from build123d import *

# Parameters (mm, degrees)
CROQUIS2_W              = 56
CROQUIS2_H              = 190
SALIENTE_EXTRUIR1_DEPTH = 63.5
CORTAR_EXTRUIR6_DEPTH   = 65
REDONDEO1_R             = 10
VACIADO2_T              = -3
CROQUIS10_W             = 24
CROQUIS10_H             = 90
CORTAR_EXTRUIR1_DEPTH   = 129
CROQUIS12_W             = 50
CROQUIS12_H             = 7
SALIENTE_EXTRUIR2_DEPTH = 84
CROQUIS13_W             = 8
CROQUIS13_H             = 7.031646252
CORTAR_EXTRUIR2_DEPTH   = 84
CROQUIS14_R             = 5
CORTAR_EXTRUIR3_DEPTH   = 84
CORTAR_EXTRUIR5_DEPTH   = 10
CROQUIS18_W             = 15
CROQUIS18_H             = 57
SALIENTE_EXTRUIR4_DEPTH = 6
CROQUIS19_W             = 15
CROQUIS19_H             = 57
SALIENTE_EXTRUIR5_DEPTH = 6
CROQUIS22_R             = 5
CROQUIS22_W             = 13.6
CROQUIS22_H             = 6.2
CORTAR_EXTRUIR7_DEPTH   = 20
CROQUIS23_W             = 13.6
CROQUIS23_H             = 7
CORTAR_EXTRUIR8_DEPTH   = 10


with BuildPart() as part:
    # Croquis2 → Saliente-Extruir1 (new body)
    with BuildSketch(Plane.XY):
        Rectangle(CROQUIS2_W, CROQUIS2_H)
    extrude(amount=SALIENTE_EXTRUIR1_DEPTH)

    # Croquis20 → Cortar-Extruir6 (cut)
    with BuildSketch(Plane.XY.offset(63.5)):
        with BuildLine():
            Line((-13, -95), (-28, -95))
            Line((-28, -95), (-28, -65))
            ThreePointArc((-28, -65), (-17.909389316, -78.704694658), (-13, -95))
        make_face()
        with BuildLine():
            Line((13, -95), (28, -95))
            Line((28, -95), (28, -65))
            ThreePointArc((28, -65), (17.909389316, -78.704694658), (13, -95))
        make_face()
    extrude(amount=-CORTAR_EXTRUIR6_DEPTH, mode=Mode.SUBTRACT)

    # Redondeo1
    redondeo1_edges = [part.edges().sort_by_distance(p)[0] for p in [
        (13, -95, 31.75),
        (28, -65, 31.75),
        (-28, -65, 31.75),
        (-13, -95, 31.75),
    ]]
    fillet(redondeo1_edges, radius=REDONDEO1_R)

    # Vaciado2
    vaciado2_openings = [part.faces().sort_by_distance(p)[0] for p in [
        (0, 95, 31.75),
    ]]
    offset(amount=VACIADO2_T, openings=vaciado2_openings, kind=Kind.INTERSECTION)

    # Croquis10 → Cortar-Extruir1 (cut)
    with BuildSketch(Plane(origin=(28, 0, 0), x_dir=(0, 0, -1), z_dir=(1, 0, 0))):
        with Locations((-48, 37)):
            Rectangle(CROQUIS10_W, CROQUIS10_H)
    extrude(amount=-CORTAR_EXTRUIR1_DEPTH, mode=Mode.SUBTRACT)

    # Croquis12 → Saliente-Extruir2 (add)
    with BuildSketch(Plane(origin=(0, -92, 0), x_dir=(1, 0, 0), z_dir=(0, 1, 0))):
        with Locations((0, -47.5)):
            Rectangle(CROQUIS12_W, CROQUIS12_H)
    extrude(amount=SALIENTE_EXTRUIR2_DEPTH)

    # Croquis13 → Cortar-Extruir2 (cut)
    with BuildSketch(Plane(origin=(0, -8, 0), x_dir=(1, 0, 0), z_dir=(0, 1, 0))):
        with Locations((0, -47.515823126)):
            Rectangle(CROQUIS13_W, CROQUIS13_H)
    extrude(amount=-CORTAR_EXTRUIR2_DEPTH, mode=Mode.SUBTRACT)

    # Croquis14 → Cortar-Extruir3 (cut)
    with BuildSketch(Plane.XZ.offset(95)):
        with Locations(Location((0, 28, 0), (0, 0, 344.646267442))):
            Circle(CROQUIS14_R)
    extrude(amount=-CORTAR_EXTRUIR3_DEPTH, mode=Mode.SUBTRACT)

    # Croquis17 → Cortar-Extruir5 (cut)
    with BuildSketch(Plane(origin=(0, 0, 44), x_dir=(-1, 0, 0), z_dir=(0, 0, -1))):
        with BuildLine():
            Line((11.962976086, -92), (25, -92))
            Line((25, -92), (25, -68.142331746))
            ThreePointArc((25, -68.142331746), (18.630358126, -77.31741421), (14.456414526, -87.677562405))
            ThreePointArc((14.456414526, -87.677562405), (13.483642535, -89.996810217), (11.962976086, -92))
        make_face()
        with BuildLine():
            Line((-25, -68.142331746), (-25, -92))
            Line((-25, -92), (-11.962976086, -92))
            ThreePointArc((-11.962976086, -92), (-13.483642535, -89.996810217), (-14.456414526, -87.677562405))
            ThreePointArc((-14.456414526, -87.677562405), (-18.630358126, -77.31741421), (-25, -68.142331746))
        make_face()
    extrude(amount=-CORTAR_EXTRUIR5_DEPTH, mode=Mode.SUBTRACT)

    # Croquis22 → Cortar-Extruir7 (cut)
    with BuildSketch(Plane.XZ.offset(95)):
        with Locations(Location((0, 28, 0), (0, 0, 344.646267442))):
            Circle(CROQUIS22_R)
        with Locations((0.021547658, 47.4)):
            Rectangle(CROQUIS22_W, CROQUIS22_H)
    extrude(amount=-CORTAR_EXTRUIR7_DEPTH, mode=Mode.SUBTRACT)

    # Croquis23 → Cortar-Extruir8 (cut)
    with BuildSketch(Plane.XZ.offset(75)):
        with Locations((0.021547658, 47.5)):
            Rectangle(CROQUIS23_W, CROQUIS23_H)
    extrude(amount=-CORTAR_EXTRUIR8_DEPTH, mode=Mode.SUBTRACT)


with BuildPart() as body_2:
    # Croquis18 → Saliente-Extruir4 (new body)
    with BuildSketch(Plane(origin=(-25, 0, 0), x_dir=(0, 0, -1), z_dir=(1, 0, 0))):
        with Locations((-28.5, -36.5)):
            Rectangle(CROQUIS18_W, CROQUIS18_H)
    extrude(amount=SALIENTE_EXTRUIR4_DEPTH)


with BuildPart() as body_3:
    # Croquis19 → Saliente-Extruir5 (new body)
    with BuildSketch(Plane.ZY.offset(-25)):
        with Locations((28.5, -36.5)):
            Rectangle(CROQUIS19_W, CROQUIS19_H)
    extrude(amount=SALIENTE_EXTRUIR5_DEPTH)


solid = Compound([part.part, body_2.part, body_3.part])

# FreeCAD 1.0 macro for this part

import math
import FreeCAD as App
import Part
import Sketcher

V = App.Vector


def edges_at(feature, points):
    """Names of the edges that pass closest to the given points."""
    edges = feature.Shape.Edges
    near = lambda p: min(range(len(edges)), key=lambda i: edges[i].distToShape(Part.Vertex(*p))[0])
    return sorted({f"Edge{near(p) + 1}" for p in points})


def faces_at(feature, points):
    """Names of the faces that lie closest to the given points."""
    faces = feature.Shape.Faces
    near = lambda p: min(range(len(faces)), key=lambda i: faces[i].distToShape(Part.Vertex(*p))[0])
    return sorted({f"Face{near(p) + 1}" for p in points})


def add_polygon(sketch, points):
    """Adds a closed chain of lines whose ends are joined by coincident constraints."""
    first, n = sketch.GeometryCount, len(points)
    for a, b in zip(points, points[1:] + points[:1]):
        sketch.addGeometry(Part.LineSegment(App.Vector(*a, 0), App.Vector(*b, 0)), False)
    for i in range(n):
        sketch.addConstraint(Sketcher.Constraint("Coincident", first + i, 2, first + (i + 1) % n, 1))

doc = App.newDocument("Part")
params = doc.addObject("Spreadsheet::Sheet", "Params")
for row, (alias, value) in enumerate([
    ("sketch1_width", "56 mm"),
    ("sketch1_height", "190 mm"),
    ("pad1_length", "63.5 mm"),
    ("sketch2_radius", "50 mm"),
    ("sketch2_width", "15 mm"),
    ("sketch2_height", "30 mm"),
    ("pocket1_length", "65 mm"),
    ("fillet_radius", "10 mm"),
    ("thickness_wall", "3 mm"),
    ("sketch3_width", "90 mm"),
    ("sketch3_height", "24 mm"),
    ("pocket2_length", "129 mm"),
    ("sketch4_width", "50 mm"),
    ("sketch4_height", "7 mm"),
    ("pad2_length", "84 mm"),
    ("sketch5_width", "8 mm"),
    ("pocket3_length", "84 mm"),
    ("sketch6_diameter", "10 mm"),
    ("pocket4_length", "84 mm"),
    ("sketch7_radius", "50 mm"),
    ("sketch7_radius2", "10 mm"),
    ("pocket5_length", "10 mm"),
    ("sketch8_diameter", "10 mm"),
    ("sketch8_width", "13.6 mm"),
    ("sketch8_height", "6.2 mm"),
    ("pocket6_length", "20 mm"),
    ("sketch9_height", "7 mm"),
    ("sketch9_width", "13.6 mm"),
    ("pocket7_length", "10 mm"),
    ("sketch10_width", "57 mm"),
    ("sketch10_height", "15 mm"),
    ("pad3_length", "6 mm"),
    ("sketch11_width", "57 mm"),
    ("sketch11_height", "15 mm"),
    ("pad4_length", "6 mm"),
], start=1):
    params.set(f"A{row}", alias)
    params.set(f"B{row}", "=" + value)
    params.setAlias(f"B{row}", alias)

body = doc.addObject("PartDesign::Body", "Body")

# Sketch on XY plane
sketch1 = body.newObject("Sketcher::SketchObject", "Sketch")
sketch1.AttachmentSupport = (doc.getObject("XY_Plane"), [""])
sketch1.MapMode = "FlatFace"
add_polygon(sketch1, [(-28, 95), (-28, -95), (28, -95), (28, 95)])  # lines 0-3
sketch1.addConstraint([
    Sketcher.Constraint("Vertical", 0),
    Sketcher.Constraint("Horizontal", 1),
    Sketcher.Constraint("Vertical", 2),
    Sketcher.Constraint("Horizontal", 3),
    Sketcher.Constraint("Symmetric", 0, 2, 2, 2, -1, 1),
    Sketcher.Constraint("DistanceX", 1, 1, 1, 2, 56.0),
    Sketcher.Constraint("DistanceY", 0, 2, 0, 1, 190.0),
])
sketch1.setExpression("Constraints[9]", "Params.sketch1_width")
sketch1.setExpression("Constraints[10]", "Params.sketch1_height")
pad1 = body.newObject("PartDesign::Pad", "Pad")
pad1.Profile = sketch1
pad1.setExpression("Length", "Params.pad1_length")

# Sketch on XY plane
sketch2 = body.newObject("Sketcher::SketchObject", "Sketch001")
sketch2.AttachmentSupport = (doc.getObject("XY_Plane"), [""])
sketch2.MapMode = "FlatFace"
sketch2.AttachmentOffset = App.Placement(V(0, 0, 63.5), App.Rotation())
sketch2.addGeometry([
    Part.LineSegment(V(-28, -95, 0), V(-13, -95, 0)),  # 0
    Part.ArcOfCircle(Part.Circle(V(-63, -101, 0), V(0, 0, 1), 50), math.radians(7), math.radians(46)),  # 1
    Part.LineSegment(V(-28, -65, 0), V(-28, -95, 0)),  # 2
    Part.LineSegment(V(13, -95, 0), V(28, -95, 0)),  # 3
    Part.LineSegment(V(28, -95, 0), V(28, -65, 0)),  # 4
    Part.ArcOfCircle(Part.Circle(V(63, -101, 0), V(0, 0, 1), 50), math.radians(134), math.radians(173)),  # 5
], False)
sketch2.addConstraint([
    Sketcher.Constraint("Coincident", 0, 2, 1, 1),
    Sketcher.Constraint("Coincident", 1, 2, 2, 1),
    Sketcher.Constraint("Coincident", 2, 2, 0, 1),
    Sketcher.Constraint("Coincident", 3, 2, 4, 1),
    Sketcher.Constraint("Coincident", 4, 2, 5, 1),
    Sketcher.Constraint("Coincident", 5, 2, 3, 1),
    Sketcher.Constraint("Horizontal", 0),
    Sketcher.Constraint("Vertical", 2),
    Sketcher.Constraint("Horizontal", 3),
    Sketcher.Constraint("Vertical", 4),
    Sketcher.Constraint("Equal", 1, 5),
    Sketcher.Constraint("Symmetric", 1, 3, 5, 3, -2),
    Sketcher.Constraint("Symmetric", 2, 2, 3, 2, -2),
    Sketcher.Constraint("Radius", 1, 50.0),
    Sketcher.Constraint("DistanceX", 0, 1, 0, 2, 15.0),
    Sketcher.Constraint("DistanceY", 2, 2, 2, 1, 30.0),
    Sketcher.Constraint("DistanceX", 0, 2, -1, 1, 13.0),
    Sketcher.Constraint("DistanceY", 0, 2, -1, 1, 95.0),
])
sketch2.setExpression("Constraints[13]", "Params.sketch2_radius")
sketch2.setExpression("Constraints[14]", "Params.sketch2_width")
sketch2.setExpression("Constraints[15]", "Params.sketch2_height")
pocket1 = body.newObject("PartDesign::Pocket", "Pocket")
pocket1.Profile = sketch2
pocket1.setExpression("Length", "Params.pocket1_length")
doc.recompute()

fillet = body.newObject("PartDesign::Fillet", "Fillet")
fillet.Base = (pocket1, edges_at(pocket1, [
    (13, -95, 31.75),
    (28, -65, 31.75),
    (-28, -65, 31.75),
    (-13, -95, 31.75),
]))
fillet.setExpression("Radius", "Params.fillet_radius")
doc.recompute()

thickness = body.newObject("PartDesign::Thickness", "Thickness")
thickness.Base = (fillet, faces_at(fillet, [(0, 95, 31.75)]))
thickness.setExpression("Value", "Params.thickness_wall")
thickness.Reversed = True
thickness.Join = "Intersection"

# Sketch on YZ plane
sketch3 = body.newObject("Sketcher::SketchObject", "Sketch002")
sketch3.AttachmentSupport = (doc.getObject("YZ_Plane"), [""])
sketch3.MapMode = "FlatFace"
sketch3.AttachmentOffset = App.Placement(V(0, 0, 28), App.Rotation())
add_polygon(sketch3, [(82, 60), (-8, 60), (-8, 36), (82, 36)])  # lines 0-3
sketch3.addConstraint([
    Sketcher.Constraint("Horizontal", 0),
    Sketcher.Constraint("Vertical", 1),
    Sketcher.Constraint("Horizontal", 2),
    Sketcher.Constraint("Vertical", 3),
    Sketcher.Constraint("DistanceX", 0, 2, 0, 1, 90.0),
    Sketcher.Constraint("DistanceY", 1, 2, 1, 1, 24.0),
    Sketcher.Constraint("DistanceX", 0, 2, -1, 1, 8.0),
    Sketcher.Constraint("DistanceY", -1, 1, 0, 2, 60.0),
])
sketch3.setExpression("Constraints[8]", "Params.sketch3_width")
sketch3.setExpression("Constraints[9]", "Params.sketch3_height")
pocket2 = body.newObject("PartDesign::Pocket", "Pocket001")
pocket2.Profile = sketch3
pocket2.setExpression("Length", "Params.pocket2_length")

# Sketch on XZ plane
sketch4 = body.newObject("Sketcher::SketchObject", "Sketch003")
sketch4.AttachmentSupport = (doc.getObject("XZ_Plane"), [""])
sketch4.MapMode = "FlatFace"
sketch4.AttachmentOffset = App.Placement(V(0, 0, 92), App.Rotation())
add_polygon(sketch4, [(-25, 44), (-25, 51), (25, 51), (25, 44)])  # lines 0-3
sketch4.addConstraint([
    Sketcher.Constraint("Vertical", 0),
    Sketcher.Constraint("Horizontal", 1),
    Sketcher.Constraint("Vertical", 2),
    Sketcher.Constraint("Horizontal", 3),
    Sketcher.Constraint("DistanceX", 1, 1, 1, 2, 50.0),
    Sketcher.Constraint("DistanceY", 0, 1, 0, 2, 7.0),
    Sketcher.Constraint("DistanceX", 0, 2, -1, 1, 25.0),
    Sketcher.Constraint("DistanceY", -1, 1, 0, 2, 51.0),
])
sketch4.setExpression("Constraints[8]", "Params.sketch4_width")
sketch4.setExpression("Constraints[9]", "Params.sketch4_height")
pad2 = body.newObject("PartDesign::Pad", "Pad001")
pad2.Profile = sketch4
pad2.setExpression("Length", "Params.pad2_length")
pad2.Reversed = True

# Sketch on XZ plane
sketch5 = body.newObject("Sketcher::SketchObject", "Sketch004")
sketch5.AttachmentSupport = (doc.getObject("XZ_Plane"), [""])
sketch5.MapMode = "FlatFace"
sketch5.AttachmentOffset = App.Placement(V(0, 0, 8), App.Rotation())
add_polygon(sketch5, [(-4, 44), (-4, 51), (4, 51), (4, 44)])  # lines 0-3
sketch5.addConstraint([
    Sketcher.Constraint("Vertical", 0),
    Sketcher.Constraint("Horizontal", 1),
    Sketcher.Constraint("Vertical", 2),
    Sketcher.Constraint("Horizontal", 3),
    Sketcher.Constraint("DistanceX", 1, 1, 1, 2, 8.0),
    Sketcher.Constraint("DistanceX", 0, 2, -1, 1, 4.0),
    Sketcher.Constraint("DistanceY", -1, 1, 2, 2, 44.0),
    Sketcher.Constraint("DistanceY", 0, 1, 0, 2, 7.031646),
])
sketch5.setExpression("Constraints[8]", "Params.sketch5_width")
pocket3 = body.newObject("PartDesign::Pocket", "Pocket002")
pocket3.Profile = sketch5
pocket3.setExpression("Length", "Params.pocket3_length")
pocket3.Reversed = True

# Sketch on XZ plane
sketch6 = body.newObject("Sketcher::SketchObject", "Sketch005")
sketch6.AttachmentSupport = (doc.getObject("XZ_Plane"), [""])
sketch6.MapMode = "FlatFace"
sketch6.AttachmentOffset = App.Placement(V(0, 0, 95), App.Rotation())
sketch6.addGeometry(Part.Circle(V(0, 28, 0), V(0, 0, 1), 5), False)
sketch6.addConstraint([
    Sketcher.Constraint("PointOnObject", 0, 3, -2),
    Sketcher.Constraint("Diameter", 0, 10.0),
    Sketcher.Constraint("DistanceY", -1, 1, 0, 3, 28.0),
])
sketch6.setExpression("Constraints[1]", "Params.sketch6_diameter")
pocket4 = body.newObject("PartDesign::Pocket", "Pocket003")
pocket4.Profile = sketch6
pocket4.setExpression("Length", "Params.pocket4_length")

# Sketch on XY plane
sketch7 = body.newObject("Sketcher::SketchObject", "Sketch006")
sketch7.AttachmentSupport = (doc.getObject("XY_Plane"), [""])
sketch7.MapMode = "FlatFace"
sketch7.AttachmentOffset = App.Placement(V(0, 0, 44), App.Rotation())
sketch7.addGeometry([
    Part.LineSegment(V(-12, -92, 0), V(-25, -92, 0)),  # 0
    Part.LineSegment(V(-25, -92, 0), V(-25, -68.1, 0)),  # 1
    Part.ArcOfCircle(Part.Circle(V(-62.6, -101.1, 0), V(0, 0, 1), 50), math.radians(16), math.radians(41)),  # 2
    Part.ArcOfCircle(Part.Circle(V(-4.8, -85, 0), V(0, 0, 1), 10), math.radians(-164), math.radians(-136)),  # 3
    Part.LineSegment(V(25, -68.1, 0), V(25, -92, 0)),  # 4
    Part.LineSegment(V(25, -92, 0), V(12, -92, 0)),  # 5
    Part.ArcOfCircle(Part.Circle(V(4.8, -85, 0), V(0, 0, 1), 10), math.radians(-44), math.radians(-16)),  # 6
    Part.ArcOfCircle(Part.Circle(V(62.6, -101.1, 0), V(0, 0, 1), 50), math.radians(139), math.radians(164)),  # 7
], False)
sketch7.addConstraint([
    Sketcher.Constraint("Coincident", 0, 2, 1, 1),
    Sketcher.Constraint("Coincident", 1, 2, 2, 2),
    Sketcher.Constraint("Tangent", 2, 1, 3, 1),
    Sketcher.Constraint("Coincident", 3, 2, 0, 1),
    Sketcher.Constraint("Coincident", 4, 2, 5, 1),
    Sketcher.Constraint("Coincident", 5, 2, 6, 1),
    Sketcher.Constraint("Tangent", 6, 2, 7, 2),
    Sketcher.Constraint("Coincident", 7, 1, 4, 1),
    Sketcher.Constraint("Horizontal", 0),
    Sketcher.Constraint("Vertical", 1),
    Sketcher.Constraint("Vertical", 4),
    Sketcher.Constraint("Horizontal", 5),
    Sketcher.Constraint("Equal", 3, 6),
    Sketcher.Constraint("Equal", 2, 7),
    Sketcher.Constraint("Symmetric", 3, 3, 6, 3, -2),
    Sketcher.Constraint("Symmetric", 0, 2, 4, 2, -2),
    Sketcher.Constraint("Horizontal", 2, 3, 7, 3),
    Sketcher.Constraint("Radius", 2, 50.0),
    Sketcher.Constraint("Radius", 3, 10.0),
    Sketcher.Constraint("DistanceY", 3, 3, -1, 1, 85.0),
    Sketcher.Constraint("DistanceX", 0, 2, -1, 1, 25.0),
    Sketcher.Constraint("DistanceY", 0, 2, -1, 1, 92.0),
    Sketcher.Constraint("DistanceY", 1, 1, 1, 2, 23.857668),
    Sketcher.Constraint("DistanceX", 2, 3, 3, 3, 57.809201),
])
sketch7.setExpression("Constraints[17]", "Params.sketch7_radius")
sketch7.setExpression("Constraints[18]", "Params.sketch7_radius2")
pocket5 = body.newObject("PartDesign::Pocket", "Pocket004")
pocket5.Profile = sketch7
pocket5.setExpression("Length", "Params.pocket5_length")
pocket5.Reversed = True

# Sketch on XZ plane
sketch8 = body.newObject("Sketcher::SketchObject", "Sketch007")
sketch8.AttachmentSupport = (doc.getObject("XZ_Plane"), [""])
sketch8.MapMode = "FlatFace"
sketch8.AttachmentOffset = App.Placement(V(0, 0, 95), App.Rotation())
sketch8.addGeometry(Part.Circle(V(0, 28, 0), V(0, 0, 1), 5), False)  # 0
add_polygon(sketch8, [(-7, 50), (-7, 44), (7, 44), (7, 50)])  # lines 1-4
sketch8.addConstraint([
    Sketcher.Constraint("Vertical", 1),
    Sketcher.Constraint("Horizontal", 2),
    Sketcher.Constraint("Vertical", 3),
    Sketcher.Constraint("Horizontal", 4),
    Sketcher.Constraint("PointOnObject", 0, 3, -2),
    Sketcher.Constraint("Diameter", 0, 10.0),
    Sketcher.Constraint("DistanceX", 2, 1, 2, 2, 13.6),
    Sketcher.Constraint("DistanceY", 1, 2, 1, 1, 6.2),
    Sketcher.Constraint("DistanceY", -1, 1, 0, 3, 28.0),
    Sketcher.Constraint("DistanceY", -1, 1, 1, 2, 44.3),
    Sketcher.Constraint("DistanceX", 1, 2, -1, 1, 6.778452),
])
sketch8.setExpression("Constraints[9]", "Params.sketch8_diameter")
sketch8.setExpression("Constraints[10]", "Params.sketch8_width")
sketch8.setExpression("Constraints[11]", "Params.sketch8_height")
pocket6 = body.newObject("PartDesign::Pocket", "Pocket005")
pocket6.Profile = sketch8
pocket6.setExpression("Length", "Params.pocket6_length")

# Sketch on XZ plane
sketch9 = body.newObject("Sketcher::SketchObject", "Sketch008")
sketch9.AttachmentSupport = (doc.getObject("XZ_Plane"), [""])
sketch9.MapMode = "FlatFace"
sketch9.AttachmentOffset = App.Placement(V(0, 0, 75), App.Rotation())
add_polygon(sketch9, [(-7, 51), (-7, 44), (7, 44), (7, 51)])  # lines 0-3
sketch9.addConstraint([
    Sketcher.Constraint("Vertical", 0),
    Sketcher.Constraint("Horizontal", 1),
    Sketcher.Constraint("Vertical", 2),
    Sketcher.Constraint("Horizontal", 3),
    Sketcher.Constraint("DistanceY", 0, 2, 0, 1, 7.0),
    Sketcher.Constraint("DistanceX", 1, 1, 1, 2, 13.6),
    Sketcher.Constraint("DistanceY", -1, 1, 0, 2, 44.0),
    Sketcher.Constraint("DistanceX", 0, 2, -1, 1, 6.778452),
])
sketch9.setExpression("Constraints[8]", "Params.sketch9_height")
sketch9.setExpression("Constraints[9]", "Params.sketch9_width")
pocket7 = body.newObject("PartDesign::Pocket", "Pocket006")
pocket7.Profile = sketch9
pocket7.setExpression("Length", "Params.pocket7_length")
body2 = doc.addObject("PartDesign::Body", "Body001")

# Sketch on YZ plane
sketch10 = body2.newObject("Sketcher::SketchObject", "Sketch009")
sketch10.AttachmentSupport = (doc.getObject("YZ_Plane001"), [""])
sketch10.MapMode = "FlatFace"
sketch10.AttachmentOffset = App.Placement(V(0, 0, -25), App.Rotation())
add_polygon(sketch10, [(-8, 36), (-65, 36), (-65, 21), (-8, 21)])  # lines 0-3
sketch10.addConstraint([
    Sketcher.Constraint("Horizontal", 0),
    Sketcher.Constraint("Vertical", 1),
    Sketcher.Constraint("Horizontal", 2),
    Sketcher.Constraint("Vertical", 3),
    Sketcher.Constraint("DistanceX", 0, 2, 0, 1, 57.0),
    Sketcher.Constraint("DistanceY", 1, 2, 1, 1, 15.0),
    Sketcher.Constraint("DistanceX", 0, 2, -1, 1, 65.0),
    Sketcher.Constraint("DistanceY", -1, 1, 0, 2, 36.0),
])
sketch10.setExpression("Constraints[8]", "Params.sketch10_width")
sketch10.setExpression("Constraints[9]", "Params.sketch10_height")
pad3 = body2.newObject("PartDesign::Pad", "Pad002")
pad3.Profile = sketch10
pad3.setExpression("Length", "Params.pad3_length")
body3 = doc.addObject("PartDesign::Body", "Body002")

# Sketch on YZ plane
sketch11 = body3.newObject("Sketcher::SketchObject", "Sketch010")
sketch11.AttachmentSupport = (doc.getObject("YZ_Plane002"), [""])
sketch11.MapMode = "FlatFace"
sketch11.AttachmentOffset = App.Placement(V(0, 0, 25), App.Rotation())
add_polygon(sketch11, [(-8, 21), (-65, 21), (-65, 36), (-8, 36)])  # lines 0-3
sketch11.addConstraint([
    Sketcher.Constraint("Horizontal", 0),
    Sketcher.Constraint("Vertical", 1),
    Sketcher.Constraint("Horizontal", 2),
    Sketcher.Constraint("Vertical", 3),
    Sketcher.Constraint("DistanceX", 0, 2, 0, 1, 57.0),
    Sketcher.Constraint("DistanceY", 1, 1, 1, 2, 15.0),
    Sketcher.Constraint("DistanceX", 0, 2, -1, 1, 65.0),
    Sketcher.Constraint("DistanceY", -1, 1, 0, 2, 21.0),
])
sketch11.setExpression("Constraints[8]", "Params.sketch11_width")
sketch11.setExpression("Constraints[9]", "Params.sketch11_height")
pad4 = body3.newObject("PartDesign::Pad", "Pad003")
pad4.Profile = sketch11
pad4.setExpression("Length", "Params.pad4_length")
pad4.Reversed = True

doc.recompute()
